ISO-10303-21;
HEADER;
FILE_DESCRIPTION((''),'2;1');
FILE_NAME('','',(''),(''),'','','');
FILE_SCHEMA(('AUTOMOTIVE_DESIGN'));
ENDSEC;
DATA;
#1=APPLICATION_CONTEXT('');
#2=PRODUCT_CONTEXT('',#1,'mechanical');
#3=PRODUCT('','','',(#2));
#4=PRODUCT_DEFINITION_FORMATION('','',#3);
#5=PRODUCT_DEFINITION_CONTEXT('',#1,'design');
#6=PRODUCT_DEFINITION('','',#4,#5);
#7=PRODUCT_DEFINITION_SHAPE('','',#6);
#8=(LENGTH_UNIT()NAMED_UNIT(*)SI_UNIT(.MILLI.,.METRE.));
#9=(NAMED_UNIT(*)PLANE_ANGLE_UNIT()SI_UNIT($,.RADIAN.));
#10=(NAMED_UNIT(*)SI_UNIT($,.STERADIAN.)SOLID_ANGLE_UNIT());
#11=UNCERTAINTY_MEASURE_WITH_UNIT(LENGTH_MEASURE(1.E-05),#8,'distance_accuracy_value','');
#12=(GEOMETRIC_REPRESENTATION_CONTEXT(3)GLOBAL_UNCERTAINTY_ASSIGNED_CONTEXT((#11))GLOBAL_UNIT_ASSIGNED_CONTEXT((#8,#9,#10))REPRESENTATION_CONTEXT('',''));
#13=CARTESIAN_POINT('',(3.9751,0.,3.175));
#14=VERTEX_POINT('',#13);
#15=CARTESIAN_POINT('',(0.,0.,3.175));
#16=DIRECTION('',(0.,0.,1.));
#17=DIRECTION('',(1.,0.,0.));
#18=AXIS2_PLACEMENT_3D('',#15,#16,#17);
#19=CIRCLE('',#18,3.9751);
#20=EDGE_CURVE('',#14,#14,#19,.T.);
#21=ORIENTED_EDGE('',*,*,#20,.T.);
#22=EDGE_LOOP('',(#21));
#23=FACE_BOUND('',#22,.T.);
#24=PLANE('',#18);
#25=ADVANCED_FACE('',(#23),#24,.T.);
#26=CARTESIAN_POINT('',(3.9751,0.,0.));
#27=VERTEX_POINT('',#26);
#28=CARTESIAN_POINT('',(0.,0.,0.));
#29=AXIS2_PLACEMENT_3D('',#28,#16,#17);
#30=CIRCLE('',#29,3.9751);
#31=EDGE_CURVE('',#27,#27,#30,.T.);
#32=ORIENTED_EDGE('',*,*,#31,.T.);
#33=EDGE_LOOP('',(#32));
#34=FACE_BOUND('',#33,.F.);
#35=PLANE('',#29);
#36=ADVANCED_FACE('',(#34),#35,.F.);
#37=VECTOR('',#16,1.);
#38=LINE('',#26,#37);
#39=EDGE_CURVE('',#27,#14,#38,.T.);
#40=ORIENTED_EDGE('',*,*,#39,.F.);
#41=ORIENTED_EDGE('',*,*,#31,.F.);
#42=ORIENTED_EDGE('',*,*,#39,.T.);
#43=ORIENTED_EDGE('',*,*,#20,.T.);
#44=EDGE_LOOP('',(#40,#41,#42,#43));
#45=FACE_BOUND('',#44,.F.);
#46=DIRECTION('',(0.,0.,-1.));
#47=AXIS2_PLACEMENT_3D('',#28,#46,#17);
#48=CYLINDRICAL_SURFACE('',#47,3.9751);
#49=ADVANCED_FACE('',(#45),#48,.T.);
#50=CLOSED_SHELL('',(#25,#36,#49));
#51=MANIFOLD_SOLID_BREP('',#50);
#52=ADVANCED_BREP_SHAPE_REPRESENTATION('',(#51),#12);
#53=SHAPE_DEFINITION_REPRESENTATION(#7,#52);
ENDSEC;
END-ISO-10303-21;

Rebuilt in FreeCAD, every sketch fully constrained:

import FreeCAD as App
import Part
import Sketcher
Q = App.Units.Quantity

doc = App.newDocument("Part")
body = doc.addObject("PartDesign::Body", "Body")

sketch1 = body.newObject("Sketcher::SketchObject", "Sketch")
sketch1.AttachmentSupport = (doc.getObject("XY_Plane"), [""])
sketch1.MapMode = "FlatFace"
sketch1.addGeometry(Part.Circle(App.Vector(0, 0, 0), App.Vector(0, 0, 1), 3.9751), False)
sketch1.addConstraint(Sketcher.Constraint("Coincident", 0, 3, -1, 1))
sketch1.addConstraint(Sketcher.Constraint("Diameter", 0, Q("0.313 in")))
pad1 = body.newObject("PartDesign::Pad", "Pad")
pad1.Profile = sketch1
pad1.Length = Q("0.125 in")

doc.recompute()
